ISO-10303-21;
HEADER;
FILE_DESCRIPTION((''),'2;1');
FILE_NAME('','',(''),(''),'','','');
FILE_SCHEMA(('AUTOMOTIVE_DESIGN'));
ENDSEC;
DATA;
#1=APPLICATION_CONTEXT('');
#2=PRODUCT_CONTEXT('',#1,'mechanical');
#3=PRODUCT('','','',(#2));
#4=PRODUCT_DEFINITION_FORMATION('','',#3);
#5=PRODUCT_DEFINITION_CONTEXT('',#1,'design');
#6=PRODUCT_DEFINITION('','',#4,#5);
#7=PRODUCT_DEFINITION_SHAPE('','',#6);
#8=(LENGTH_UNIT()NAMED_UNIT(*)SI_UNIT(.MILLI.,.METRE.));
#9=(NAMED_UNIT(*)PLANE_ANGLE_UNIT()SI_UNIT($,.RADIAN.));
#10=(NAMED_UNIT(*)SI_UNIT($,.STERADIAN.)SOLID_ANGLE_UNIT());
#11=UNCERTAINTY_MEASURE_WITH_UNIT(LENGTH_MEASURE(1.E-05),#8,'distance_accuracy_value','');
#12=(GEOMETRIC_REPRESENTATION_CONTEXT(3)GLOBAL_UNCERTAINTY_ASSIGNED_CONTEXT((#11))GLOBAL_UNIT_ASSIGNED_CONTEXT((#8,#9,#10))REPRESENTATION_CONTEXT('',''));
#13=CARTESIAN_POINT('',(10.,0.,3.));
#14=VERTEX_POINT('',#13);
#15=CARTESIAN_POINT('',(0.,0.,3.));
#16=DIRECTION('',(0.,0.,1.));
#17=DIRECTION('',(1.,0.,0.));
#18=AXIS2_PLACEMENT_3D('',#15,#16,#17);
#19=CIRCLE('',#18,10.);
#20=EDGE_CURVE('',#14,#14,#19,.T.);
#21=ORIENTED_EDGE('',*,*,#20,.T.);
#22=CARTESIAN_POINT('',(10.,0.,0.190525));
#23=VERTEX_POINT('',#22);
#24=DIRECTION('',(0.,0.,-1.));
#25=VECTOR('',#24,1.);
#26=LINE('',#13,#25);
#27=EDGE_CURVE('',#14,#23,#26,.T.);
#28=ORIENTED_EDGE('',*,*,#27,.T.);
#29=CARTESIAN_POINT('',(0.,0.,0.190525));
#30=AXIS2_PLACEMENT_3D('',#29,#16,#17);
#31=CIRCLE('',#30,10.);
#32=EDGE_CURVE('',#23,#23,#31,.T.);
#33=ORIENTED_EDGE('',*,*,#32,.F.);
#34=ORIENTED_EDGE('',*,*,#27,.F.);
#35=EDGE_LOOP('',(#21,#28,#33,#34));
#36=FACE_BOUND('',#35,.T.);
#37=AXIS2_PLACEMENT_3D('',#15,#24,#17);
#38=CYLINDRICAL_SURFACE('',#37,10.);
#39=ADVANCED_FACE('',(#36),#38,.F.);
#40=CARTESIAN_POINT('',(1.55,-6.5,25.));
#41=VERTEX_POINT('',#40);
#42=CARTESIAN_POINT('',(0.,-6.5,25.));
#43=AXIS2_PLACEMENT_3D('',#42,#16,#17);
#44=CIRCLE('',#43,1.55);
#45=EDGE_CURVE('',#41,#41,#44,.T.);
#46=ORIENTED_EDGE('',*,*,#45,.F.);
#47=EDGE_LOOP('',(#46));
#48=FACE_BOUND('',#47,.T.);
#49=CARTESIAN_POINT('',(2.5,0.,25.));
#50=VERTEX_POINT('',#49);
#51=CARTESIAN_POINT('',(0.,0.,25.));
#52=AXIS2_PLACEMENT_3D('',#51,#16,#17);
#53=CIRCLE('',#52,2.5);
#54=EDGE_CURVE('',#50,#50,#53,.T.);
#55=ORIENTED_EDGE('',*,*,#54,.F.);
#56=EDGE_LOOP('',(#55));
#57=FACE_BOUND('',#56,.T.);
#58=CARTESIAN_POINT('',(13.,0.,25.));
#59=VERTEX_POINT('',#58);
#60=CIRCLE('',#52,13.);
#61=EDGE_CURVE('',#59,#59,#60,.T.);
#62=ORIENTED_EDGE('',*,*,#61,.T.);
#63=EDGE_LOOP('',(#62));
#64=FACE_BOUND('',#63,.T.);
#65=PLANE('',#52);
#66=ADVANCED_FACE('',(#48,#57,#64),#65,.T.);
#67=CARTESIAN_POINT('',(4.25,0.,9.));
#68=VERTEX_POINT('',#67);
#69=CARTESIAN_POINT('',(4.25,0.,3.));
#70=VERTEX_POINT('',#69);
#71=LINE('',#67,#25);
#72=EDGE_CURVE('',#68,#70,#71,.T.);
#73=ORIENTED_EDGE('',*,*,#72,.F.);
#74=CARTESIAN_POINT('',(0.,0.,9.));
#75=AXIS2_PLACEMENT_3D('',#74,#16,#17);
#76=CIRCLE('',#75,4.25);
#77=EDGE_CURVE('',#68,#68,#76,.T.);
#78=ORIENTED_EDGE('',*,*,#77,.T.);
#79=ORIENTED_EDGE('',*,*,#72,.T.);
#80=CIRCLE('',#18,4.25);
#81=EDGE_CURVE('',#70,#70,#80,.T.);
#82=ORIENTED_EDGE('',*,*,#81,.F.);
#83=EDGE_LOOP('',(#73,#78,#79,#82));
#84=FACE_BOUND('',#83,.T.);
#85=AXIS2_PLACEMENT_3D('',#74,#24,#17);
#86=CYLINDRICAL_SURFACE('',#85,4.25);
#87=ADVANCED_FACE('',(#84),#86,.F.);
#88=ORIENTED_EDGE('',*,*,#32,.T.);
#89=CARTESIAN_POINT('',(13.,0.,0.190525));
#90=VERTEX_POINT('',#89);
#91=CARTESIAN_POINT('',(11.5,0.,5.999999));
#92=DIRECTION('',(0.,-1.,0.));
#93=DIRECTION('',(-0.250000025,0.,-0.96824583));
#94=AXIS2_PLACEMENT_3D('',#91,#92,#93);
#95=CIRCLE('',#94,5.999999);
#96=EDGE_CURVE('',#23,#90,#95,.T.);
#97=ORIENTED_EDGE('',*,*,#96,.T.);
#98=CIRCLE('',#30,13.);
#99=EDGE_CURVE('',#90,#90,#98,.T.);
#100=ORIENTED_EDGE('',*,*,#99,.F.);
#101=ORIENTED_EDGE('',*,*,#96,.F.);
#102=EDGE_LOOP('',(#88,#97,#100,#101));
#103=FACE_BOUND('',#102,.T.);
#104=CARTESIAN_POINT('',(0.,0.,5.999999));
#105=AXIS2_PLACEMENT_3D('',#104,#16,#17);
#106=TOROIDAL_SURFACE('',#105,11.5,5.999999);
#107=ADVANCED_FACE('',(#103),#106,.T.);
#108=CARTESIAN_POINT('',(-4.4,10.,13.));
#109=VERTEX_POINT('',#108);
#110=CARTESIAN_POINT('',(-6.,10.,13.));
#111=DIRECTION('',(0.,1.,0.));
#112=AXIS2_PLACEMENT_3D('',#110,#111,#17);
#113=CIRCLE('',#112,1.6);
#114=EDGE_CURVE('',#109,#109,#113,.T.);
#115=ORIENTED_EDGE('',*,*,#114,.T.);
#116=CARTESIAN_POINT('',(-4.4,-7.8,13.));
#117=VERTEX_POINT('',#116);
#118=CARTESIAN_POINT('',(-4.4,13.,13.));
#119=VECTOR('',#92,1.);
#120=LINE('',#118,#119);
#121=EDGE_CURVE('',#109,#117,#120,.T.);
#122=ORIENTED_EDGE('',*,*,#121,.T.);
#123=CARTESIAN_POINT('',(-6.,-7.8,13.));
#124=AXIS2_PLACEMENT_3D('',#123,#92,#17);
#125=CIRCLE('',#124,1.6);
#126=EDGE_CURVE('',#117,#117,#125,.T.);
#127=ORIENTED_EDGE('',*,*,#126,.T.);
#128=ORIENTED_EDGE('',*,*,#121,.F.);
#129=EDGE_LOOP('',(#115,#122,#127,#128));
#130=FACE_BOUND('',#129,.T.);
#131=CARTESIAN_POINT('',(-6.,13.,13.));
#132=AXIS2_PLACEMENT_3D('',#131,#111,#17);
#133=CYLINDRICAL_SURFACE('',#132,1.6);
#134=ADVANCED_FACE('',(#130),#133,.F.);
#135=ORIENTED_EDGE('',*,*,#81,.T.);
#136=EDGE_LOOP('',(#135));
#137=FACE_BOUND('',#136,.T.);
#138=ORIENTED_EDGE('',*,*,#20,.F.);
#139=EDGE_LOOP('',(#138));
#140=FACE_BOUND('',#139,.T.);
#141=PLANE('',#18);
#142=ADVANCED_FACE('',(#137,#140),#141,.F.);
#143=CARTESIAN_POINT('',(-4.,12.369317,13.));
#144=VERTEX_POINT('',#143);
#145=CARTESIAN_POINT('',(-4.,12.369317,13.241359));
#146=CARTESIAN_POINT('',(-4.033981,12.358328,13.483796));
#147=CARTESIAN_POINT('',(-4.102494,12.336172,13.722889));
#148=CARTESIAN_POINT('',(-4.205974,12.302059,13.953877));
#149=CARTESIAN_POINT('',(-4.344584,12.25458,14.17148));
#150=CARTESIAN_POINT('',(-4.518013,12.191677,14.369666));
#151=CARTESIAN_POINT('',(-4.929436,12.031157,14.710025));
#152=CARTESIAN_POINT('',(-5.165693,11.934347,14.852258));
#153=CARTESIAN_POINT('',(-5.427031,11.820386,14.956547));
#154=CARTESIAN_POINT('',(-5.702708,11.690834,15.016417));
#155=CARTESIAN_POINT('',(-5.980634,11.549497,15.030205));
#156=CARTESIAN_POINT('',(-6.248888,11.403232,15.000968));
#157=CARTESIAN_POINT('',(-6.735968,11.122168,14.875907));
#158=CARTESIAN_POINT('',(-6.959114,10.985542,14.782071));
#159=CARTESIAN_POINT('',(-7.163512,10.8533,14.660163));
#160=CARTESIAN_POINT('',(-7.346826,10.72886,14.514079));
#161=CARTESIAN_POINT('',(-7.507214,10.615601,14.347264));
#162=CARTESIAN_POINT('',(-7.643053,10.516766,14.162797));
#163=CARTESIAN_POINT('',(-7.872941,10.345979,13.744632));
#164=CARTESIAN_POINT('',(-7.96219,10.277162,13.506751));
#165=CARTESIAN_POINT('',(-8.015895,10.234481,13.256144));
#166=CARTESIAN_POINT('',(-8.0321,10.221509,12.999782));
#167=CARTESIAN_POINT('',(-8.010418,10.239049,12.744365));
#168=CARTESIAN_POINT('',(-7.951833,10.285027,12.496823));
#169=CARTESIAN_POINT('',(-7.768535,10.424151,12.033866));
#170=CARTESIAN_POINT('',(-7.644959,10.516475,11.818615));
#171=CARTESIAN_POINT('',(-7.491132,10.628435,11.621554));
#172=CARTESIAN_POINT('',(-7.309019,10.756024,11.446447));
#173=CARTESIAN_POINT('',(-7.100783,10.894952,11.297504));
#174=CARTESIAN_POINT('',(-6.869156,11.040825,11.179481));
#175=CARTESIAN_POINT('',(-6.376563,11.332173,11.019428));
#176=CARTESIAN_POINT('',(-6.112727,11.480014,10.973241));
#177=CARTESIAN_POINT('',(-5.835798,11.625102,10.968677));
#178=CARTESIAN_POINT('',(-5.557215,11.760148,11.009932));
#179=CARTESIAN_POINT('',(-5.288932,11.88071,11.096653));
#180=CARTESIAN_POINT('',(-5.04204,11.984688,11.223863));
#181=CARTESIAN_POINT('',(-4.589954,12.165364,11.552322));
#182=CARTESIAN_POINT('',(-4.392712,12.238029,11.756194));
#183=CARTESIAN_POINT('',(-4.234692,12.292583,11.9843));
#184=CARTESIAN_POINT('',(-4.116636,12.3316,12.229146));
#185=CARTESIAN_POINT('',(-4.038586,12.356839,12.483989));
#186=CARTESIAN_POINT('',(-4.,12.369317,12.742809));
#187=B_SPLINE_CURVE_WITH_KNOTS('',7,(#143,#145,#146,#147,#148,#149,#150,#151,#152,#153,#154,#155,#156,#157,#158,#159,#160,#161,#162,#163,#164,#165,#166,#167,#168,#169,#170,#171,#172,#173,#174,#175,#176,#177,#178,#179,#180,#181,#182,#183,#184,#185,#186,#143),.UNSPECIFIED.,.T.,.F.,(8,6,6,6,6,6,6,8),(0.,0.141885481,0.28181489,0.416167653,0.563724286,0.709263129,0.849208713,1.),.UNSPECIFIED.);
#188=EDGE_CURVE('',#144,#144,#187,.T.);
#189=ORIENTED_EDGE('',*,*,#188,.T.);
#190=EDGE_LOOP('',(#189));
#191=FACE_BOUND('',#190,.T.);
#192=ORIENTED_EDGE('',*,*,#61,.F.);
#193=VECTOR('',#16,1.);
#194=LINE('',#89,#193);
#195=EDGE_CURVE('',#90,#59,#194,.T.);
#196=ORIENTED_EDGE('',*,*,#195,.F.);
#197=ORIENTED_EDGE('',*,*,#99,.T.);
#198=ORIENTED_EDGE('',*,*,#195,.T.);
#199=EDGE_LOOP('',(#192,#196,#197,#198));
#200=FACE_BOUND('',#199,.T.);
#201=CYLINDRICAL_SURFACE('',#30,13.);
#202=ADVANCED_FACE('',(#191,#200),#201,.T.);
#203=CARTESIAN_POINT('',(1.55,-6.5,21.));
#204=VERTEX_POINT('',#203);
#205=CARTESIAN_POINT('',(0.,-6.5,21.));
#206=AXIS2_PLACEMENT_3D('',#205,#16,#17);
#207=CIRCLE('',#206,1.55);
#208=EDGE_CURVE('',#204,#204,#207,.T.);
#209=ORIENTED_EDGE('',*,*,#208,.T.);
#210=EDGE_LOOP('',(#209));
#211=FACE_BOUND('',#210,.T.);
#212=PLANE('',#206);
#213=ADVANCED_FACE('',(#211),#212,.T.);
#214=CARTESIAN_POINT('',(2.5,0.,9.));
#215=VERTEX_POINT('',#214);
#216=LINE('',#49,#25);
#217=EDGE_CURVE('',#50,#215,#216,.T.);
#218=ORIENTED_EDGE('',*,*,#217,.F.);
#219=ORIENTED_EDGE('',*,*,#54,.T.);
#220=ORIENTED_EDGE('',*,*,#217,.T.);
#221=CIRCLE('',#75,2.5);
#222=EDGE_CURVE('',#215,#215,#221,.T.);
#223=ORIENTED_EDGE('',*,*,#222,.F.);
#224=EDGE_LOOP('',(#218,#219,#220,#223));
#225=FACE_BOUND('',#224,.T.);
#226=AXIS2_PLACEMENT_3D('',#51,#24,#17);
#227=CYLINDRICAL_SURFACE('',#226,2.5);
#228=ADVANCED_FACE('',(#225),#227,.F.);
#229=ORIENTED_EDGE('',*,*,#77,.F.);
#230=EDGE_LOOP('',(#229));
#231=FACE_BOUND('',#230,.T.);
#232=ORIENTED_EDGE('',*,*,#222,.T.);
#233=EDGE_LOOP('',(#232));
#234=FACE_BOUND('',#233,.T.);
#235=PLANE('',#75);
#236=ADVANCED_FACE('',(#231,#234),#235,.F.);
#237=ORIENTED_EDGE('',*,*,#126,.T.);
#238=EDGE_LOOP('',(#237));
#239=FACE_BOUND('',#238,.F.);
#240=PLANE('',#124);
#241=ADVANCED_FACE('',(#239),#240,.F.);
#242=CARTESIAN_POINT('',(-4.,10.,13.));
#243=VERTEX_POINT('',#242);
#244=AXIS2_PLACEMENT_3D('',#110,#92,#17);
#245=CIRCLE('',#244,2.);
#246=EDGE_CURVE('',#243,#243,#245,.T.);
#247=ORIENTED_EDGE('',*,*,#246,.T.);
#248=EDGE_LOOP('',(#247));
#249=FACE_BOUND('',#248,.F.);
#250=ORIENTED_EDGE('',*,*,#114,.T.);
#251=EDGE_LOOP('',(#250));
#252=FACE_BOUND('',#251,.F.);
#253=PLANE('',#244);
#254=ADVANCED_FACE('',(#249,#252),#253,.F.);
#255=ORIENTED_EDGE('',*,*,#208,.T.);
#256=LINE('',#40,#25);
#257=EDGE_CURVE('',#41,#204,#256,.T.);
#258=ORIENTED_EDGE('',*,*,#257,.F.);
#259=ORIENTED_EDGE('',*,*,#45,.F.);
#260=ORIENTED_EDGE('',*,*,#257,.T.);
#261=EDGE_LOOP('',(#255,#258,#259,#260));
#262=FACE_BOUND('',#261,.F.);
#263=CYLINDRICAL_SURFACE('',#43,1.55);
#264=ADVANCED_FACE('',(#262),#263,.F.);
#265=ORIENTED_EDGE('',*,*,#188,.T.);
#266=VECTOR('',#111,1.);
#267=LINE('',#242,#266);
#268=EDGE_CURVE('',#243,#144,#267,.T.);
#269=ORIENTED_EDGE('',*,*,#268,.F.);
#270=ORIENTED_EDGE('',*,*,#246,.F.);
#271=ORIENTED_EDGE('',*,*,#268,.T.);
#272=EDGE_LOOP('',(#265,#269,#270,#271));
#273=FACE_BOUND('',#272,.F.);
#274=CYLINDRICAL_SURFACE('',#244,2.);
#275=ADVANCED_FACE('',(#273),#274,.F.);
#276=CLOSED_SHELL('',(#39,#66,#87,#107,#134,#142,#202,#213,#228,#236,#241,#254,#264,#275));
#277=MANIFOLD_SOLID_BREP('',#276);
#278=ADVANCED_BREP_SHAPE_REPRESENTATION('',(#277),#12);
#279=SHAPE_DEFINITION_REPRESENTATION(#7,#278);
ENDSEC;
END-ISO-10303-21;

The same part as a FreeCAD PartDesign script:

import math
import FreeCAD as App
import Part
import Sketcher

doc = App.newDocument("Part")
body = doc.addObject("PartDesign::Body", "Body")

# Sketch on XZ plane
sketch1 = body.newObject("Sketcher::SketchObject", "Sketch")
sketch1.AttachmentSupport = (doc.getObject("XZ_Plane"), [""])
sketch1.MapMode = "FlatFace"
sketch1.addGeometry([
    Part.LineSegment(App.Vector(10, 3, 0), App.Vector(10, 0.2, 0)),  # 0
    Part.ArcOfCircle(Part.Circle(App.Vector(11.5, 6, 0), App.Vector(0, 0, 1), 6), math.radians(-104), math.radians(-76)),  # 1
    Part.LineSegment(App.Vector(13, 0.2, 0), App.Vector(13, 25, 0)),  # 2
    Part.LineSegment(App.Vector(13, 25, 0), App.Vector(2.5, 25, 0)),  # 3
    Part.LineSegment(App.Vector(2.5, 25, 0), App.Vector(2.5, 9, 0)),  # 4
    Part.LineSegment(App.Vector(2.5, 9, 0), App.Vector(4.2, 9, 0)),  # 5
    Part.LineSegment(App.Vector(4.2, 9, 0), App.Vector(4.2, 3, 0)),  # 6
    Part.LineSegment(App.Vector(4.2, 3, 0), App.Vector(10, 3, 0)),  # 7
], False)
sketch1.addConstraint([
    Sketcher.Constraint("Coincident", 0, 2, 1, 1),
    Sketcher.Constraint("Coincident", 1, 2, 2, 1),
    Sketcher.Constraint("Coincident", 2, 2, 3, 1),
    Sketcher.Constraint("Coincident", 3, 2, 4, 1),
    Sketcher.Constraint("Coincident", 4, 2, 5, 1),
    Sketcher.Constraint("Coincident", 5, 2, 6, 1),
    Sketcher.Constraint("Coincident", 6, 2, 7, 1),
    Sketcher.Constraint("Coincident", 7, 2, 0, 1),
    Sketcher.Constraint("Vertical", 0),
    Sketcher.Constraint("Vertical", 2),
    Sketcher.Constraint("Horizontal", 3),
    Sketcher.Constraint("Vertical", 4),
    Sketcher.Constraint("Horizontal", 5),
    Sketcher.Constraint("Vertical", 6),
    Sketcher.Constraint("Horizontal", 7),
    Sketcher.Constraint("Horizontal", 0, 2, 1, 2),
    Sketcher.Constraint("Radius", 1, 5.999999),
    Sketcher.Constraint("DistanceY", 4, 2, 4, 1, 16.0),
    Sketcher.Constraint("DistanceY", 6, 2, 6, 1, 6.0),
    Sketcher.Constraint("DistanceX", 3, 2, 3, 1, 10.5),
    Sketcher.Constraint("DistanceY", -1, 1, 1, 3, 5.999999),
    Sketcher.Constraint("DistanceX", -1, 1, 0, 2, 10.0),
    Sketcher.Constraint("DistanceX", -1, 1, 1, 2, 13.0),
    Sketcher.Constraint("DistanceY", -1, 1, 2, 2, 25.0),
    Sketcher.Constraint("DistanceX", 5, 1, 5, 2, 1.75),
])
revolution = body.newObject("PartDesign::Revolution", "Revolution")
revolution.Profile = sketch1
revolution.ReferenceAxis = (sketch1, ["V_Axis"])
revolution.Angle = 360

# Sketch on XY plane
sketch2 = body.newObject("Sketcher::SketchObject", "Sketch001")
sketch2.AttachmentSupport = (doc.getObject("XY_Plane"), [""])
sketch2.MapMode = "FlatFace"
sketch2.AttachmentOffset = App.Placement(App.Vector(0, 0, 25), App.Rotation())
sketch2.addGeometry(Part.Circle(App.Vector(0, -6.5, 0), App.Vector(0, 0, 1), 1.6), False)
sketch2.addConstraint([
    Sketcher.Constraint("PointOnObject", 0, 3, -2),
    Sketcher.Constraint("Diameter", 0, 3.1),
    Sketcher.Constraint("DistanceY", 0, 3, -1, 1, 6.5),
])
pocket1 = body.newObject("PartDesign::Pocket", "Pocket")
pocket1.Profile = sketch2
pocket1.Length = 4

# Sketch on XZ plane
sketch3 = body.newObject("Sketcher::SketchObject", "Sketch002")
sketch3.AttachmentSupport = (doc.getObject("XZ_Plane"), [""])
sketch3.MapMode = "FlatFace"
sketch3.AttachmentOffset = App.Placement(App.Vector(0, 0, -13), App.Rotation())
sketch3.addGeometry(Part.Circle(App.Vector(-6, 13, 0), App.Vector(0, 0, 1), 1.6), False)
sketch3.addConstraint([
    Sketcher.Constraint("Diameter", 0, 3.2),
    Sketcher.Constraint("DistanceX", 0, 3, -1, 1, 6.0),
    Sketcher.Constraint("DistanceY", -1, 1, 0, 3, 13.0),
])
pocket2 = body.newObject("PartDesign::Pocket", "Pocket001")
pocket2.Profile = sketch3
pocket2.Length = 20.8
pocket2.Reversed = True

# Sketch on XZ plane
sketch4 = body.newObject("Sketcher::SketchObject", "Sketch003")
sketch4.AttachmentSupport = (doc.getObject("XZ_Plane"), [""])
sketch4.MapMode = "FlatFace"
sketch4.AttachmentOffset = App.Placement(App.Vector(0, 0, -10), App.Rotation())
sketch4.addGeometry(Part.Circle(App.Vector(-6, 13, 0), App.Vector(0, 0, 1), 2), False)
sketch4.addConstraint([
    Sketcher.Constraint("Diameter", 0, 4.0),
    Sketcher.Constraint("DistanceX", 0, 3, -1, 1, 6.0),
    Sketcher.Constraint("DistanceY", -1, 1, 0, 3, 13.0),
])
pocket3 = body.newObject("PartDesign::Pocket", "Pocket002")
pocket3.Profile = sketch4
pocket3.Length = 3

doc.recompute()
